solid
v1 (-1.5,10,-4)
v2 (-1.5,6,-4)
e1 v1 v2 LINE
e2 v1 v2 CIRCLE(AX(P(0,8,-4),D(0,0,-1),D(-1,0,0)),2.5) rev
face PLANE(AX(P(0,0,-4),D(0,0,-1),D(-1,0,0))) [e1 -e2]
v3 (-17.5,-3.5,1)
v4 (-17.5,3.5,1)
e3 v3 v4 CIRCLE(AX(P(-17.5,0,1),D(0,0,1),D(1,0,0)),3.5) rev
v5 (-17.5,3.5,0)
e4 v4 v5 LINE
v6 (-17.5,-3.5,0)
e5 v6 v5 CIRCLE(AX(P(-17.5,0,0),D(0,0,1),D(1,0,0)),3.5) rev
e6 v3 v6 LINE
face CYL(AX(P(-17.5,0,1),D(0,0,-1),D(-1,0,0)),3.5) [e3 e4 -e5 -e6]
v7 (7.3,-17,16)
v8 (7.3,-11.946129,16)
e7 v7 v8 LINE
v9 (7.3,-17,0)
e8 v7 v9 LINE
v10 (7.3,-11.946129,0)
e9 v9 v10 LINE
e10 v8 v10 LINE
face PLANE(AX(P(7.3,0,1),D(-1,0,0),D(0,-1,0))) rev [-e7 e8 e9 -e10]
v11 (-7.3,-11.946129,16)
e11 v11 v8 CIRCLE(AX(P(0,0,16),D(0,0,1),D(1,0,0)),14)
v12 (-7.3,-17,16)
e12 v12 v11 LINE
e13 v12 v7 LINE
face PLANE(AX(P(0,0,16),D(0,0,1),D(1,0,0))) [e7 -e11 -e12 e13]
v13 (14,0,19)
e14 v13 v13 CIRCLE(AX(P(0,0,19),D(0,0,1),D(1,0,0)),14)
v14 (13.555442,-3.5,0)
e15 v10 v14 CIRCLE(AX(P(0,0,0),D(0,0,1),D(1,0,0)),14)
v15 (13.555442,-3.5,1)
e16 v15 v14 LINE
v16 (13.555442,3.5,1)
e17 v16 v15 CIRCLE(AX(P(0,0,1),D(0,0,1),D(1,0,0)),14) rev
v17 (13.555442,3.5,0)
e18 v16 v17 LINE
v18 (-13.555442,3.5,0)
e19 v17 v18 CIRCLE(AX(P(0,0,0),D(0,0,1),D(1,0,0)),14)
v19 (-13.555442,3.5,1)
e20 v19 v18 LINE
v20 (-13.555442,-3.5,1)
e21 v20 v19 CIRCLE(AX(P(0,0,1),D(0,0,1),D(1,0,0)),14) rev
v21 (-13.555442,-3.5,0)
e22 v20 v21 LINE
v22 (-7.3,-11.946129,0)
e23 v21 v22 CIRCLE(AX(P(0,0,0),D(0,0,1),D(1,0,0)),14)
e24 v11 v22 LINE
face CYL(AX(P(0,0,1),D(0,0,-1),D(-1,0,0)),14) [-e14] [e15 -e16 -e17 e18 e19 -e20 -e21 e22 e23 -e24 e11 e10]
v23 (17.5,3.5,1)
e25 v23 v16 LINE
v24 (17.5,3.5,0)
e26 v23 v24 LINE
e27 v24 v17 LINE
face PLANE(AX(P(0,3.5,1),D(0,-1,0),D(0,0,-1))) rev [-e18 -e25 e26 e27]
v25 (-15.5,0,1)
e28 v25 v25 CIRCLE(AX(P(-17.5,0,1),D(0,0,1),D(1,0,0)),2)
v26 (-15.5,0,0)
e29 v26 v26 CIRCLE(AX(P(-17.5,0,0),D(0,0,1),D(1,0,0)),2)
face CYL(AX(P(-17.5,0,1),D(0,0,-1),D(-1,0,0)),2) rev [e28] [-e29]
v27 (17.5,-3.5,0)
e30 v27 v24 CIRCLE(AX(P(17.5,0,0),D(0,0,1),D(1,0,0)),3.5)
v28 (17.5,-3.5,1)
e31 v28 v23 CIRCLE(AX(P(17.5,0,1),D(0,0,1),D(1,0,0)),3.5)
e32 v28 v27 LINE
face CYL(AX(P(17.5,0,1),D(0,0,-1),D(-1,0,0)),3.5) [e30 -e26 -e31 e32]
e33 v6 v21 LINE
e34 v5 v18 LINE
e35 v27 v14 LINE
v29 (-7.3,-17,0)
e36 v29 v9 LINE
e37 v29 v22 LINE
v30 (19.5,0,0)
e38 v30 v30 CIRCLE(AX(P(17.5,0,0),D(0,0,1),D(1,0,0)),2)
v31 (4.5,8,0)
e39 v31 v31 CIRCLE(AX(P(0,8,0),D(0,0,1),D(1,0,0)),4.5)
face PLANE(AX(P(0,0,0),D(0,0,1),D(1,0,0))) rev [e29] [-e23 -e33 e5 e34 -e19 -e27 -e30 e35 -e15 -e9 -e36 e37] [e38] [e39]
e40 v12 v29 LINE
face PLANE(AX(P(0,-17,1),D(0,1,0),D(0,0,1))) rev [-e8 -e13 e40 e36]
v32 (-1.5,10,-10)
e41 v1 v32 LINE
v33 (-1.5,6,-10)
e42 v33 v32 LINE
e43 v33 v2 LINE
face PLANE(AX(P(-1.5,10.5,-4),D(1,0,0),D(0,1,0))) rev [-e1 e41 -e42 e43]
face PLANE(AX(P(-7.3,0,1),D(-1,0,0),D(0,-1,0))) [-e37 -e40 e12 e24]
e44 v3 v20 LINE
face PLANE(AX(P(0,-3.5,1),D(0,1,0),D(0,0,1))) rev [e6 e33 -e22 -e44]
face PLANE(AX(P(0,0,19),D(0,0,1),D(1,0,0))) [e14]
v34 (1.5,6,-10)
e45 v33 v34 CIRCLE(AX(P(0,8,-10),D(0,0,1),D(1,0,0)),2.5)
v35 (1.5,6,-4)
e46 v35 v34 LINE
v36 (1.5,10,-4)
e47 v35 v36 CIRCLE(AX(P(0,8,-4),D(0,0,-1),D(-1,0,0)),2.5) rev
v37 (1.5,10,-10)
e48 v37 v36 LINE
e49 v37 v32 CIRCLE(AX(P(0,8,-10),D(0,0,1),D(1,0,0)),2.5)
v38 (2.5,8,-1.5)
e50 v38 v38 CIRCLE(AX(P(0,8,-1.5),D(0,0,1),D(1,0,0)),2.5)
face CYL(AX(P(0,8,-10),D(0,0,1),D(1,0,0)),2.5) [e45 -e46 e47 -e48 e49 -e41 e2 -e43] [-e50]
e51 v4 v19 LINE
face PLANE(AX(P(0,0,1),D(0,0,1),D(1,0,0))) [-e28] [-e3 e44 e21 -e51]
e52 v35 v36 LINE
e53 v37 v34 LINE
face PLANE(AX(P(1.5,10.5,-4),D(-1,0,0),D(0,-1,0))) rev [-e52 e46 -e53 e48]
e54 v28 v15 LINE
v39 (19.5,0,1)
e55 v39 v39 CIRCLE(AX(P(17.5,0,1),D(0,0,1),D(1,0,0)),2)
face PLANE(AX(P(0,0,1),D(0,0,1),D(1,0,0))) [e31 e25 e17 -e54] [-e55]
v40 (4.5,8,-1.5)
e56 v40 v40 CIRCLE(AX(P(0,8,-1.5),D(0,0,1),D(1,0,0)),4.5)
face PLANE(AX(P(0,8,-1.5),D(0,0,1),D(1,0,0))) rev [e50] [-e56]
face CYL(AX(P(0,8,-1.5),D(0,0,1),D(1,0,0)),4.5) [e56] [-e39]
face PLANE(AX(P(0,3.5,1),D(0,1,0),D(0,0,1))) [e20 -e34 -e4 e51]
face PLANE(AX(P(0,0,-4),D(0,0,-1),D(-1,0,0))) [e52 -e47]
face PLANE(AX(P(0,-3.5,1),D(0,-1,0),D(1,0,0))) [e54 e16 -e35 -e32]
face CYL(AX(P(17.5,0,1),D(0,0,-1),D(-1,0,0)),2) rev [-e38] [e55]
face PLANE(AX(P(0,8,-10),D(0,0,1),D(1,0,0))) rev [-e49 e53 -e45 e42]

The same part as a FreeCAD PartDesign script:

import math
import FreeCAD as App
import Part
import Sketcher
from FreeCAD import Vector


def add_polygon(sketch, points):
    """Adds a closed chain of lines whose ends are joined by coincident constraints."""
    first, n = sketch.GeometryCount, len(points)
    for a, b in zip(points, points[1:] + points[:1]):
        sketch.addGeometry(Part.LineSegment(App.Vector(*a, 0), App.Vector(*b, 0)), False)
    for i in range(n):
        sketch.addConstraint(Sketcher.Constraint("Coincident", first + i, 2, first + (i + 1) % n, 1))

doc = App.newDocument("Part")
body = doc.addObject("PartDesign::Body", "Body")

sketch1 = doc.addObject("Sketcher::SketchObject", "Sketch")
body.addObject(sketch1)
sketch1.AttachmentSupport = (doc.XY_Plane, [""])
sketch1.MapMode = "FlatFace"
sketch1.addGeometry(Part.LineSegment(Vector(-7.3, -11.946129, 0), Vector(-7.3, -17, 0)), False)
sketch1.addGeometry(Part.LineSegment(Vector(-7.3, -17, 0), Vector(7.3, -17, 0)), False)
sketch1.addGeometry(Part.LineSegment(Vector(7.3, -17, 0), Vector(7.3, -11.946129, 0)), False)
sketch1.addGeometry(Part.ArcOfCircle(Part.Circle(Vector(0, 0, 0), Vector(0, 0, 1), 14), math.radians(-58.571874), math.radians(-14.477512)), False)
sketch1.addGeometry(Part.LineSegment(Vector(13.555442, -3.5, 0), Vector(17.5, -3.5, 0)), False)
sketch1.addGeometry(Part.ArcOfCircle(Part.Circle(Vector(17.5, 0, 0), Vector(0, 0, 1), 3.5), math.radians(-90), math.radians(90)), False)
sketch1.addGeometry(Part.LineSegment(Vector(17.5, 3.5, 0), Vector(13.555442, 3.5, 0)), False)
sketch1.addGeometry(Part.ArcOfCircle(Part.Circle(Vector(0, 0, 0), Vector(0, 0, 1), 14), math.radians(14.477512), math.radians(165.522488)), False)
sketch1.addGeometry(Part.LineSegment(Vector(-13.555442, 3.5, 0), Vector(-17.5, 3.5, 0)), False)
sketch1.addGeometry(Part.ArcOfCircle(Part.Circle(Vector(-17.5, 0, 0), Vector(0, 0, 1), 3.5), math.radians(90), math.radians(270)), False)
sketch1.addGeometry(Part.LineSegment(Vector(-17.5, -3.5, 0), Vector(-13.555442, -3.5, 0)), False)
sketch1.addGeometry(Part.ArcOfCircle(Part.Circle(Vector(0, 0, 0), Vector(0, 0, 1), 14), math.radians(-165.522488), math.radians(-121.428126)), False)
sketch1.addGeometry(Part.Circle(Vector(-17.5, 0, 0), Vector(0, 0, 1), 2), False)
sketch1.addGeometry(Part.Circle(Vector(17.5, 0, 0), Vector(0, 0, 1), 2), False)
sketch1.addConstraint(Sketcher.Constraint("Coincident", 0, 2, 1, 1))
sketch1.addConstraint(Sketcher.Constraint("Coincident", 1, 2, 2, 1))
sketch1.addConstraint(Sketcher.Constraint("Coincident", 2, 2, 3, 1))
sketch1.addConstraint(Sketcher.Constraint("Coincident", 3, 2, 4, 1))
sketch1.addConstraint(Sketcher.Constraint("Tangent", 4, 2, 5, 1))
sketch1.addConstraint(Sketcher.Constraint("Tangent", 5, 2, 6, 1))
sketch1.addConstraint(Sketcher.Constraint("Coincident", 6, 2, 7, 1))
sketch1.addConstraint(Sketcher.Constraint("Coincident", 7, 2, 8, 1))
sketch1.addConstraint(Sketcher.Constraint("Tangent", 8, 2, 9, 1))
sketch1.addConstraint(Sketcher.Constraint("Tangent", 9, 2, 10, 1))
sketch1.addConstraint(Sketcher.Constraint("Coincident", 10, 2, 11, 1))
sketch1.addConstraint(Sketcher.Constraint("Coincident", 11, 2, 0, 1))
sketch1.addConstraint(Sketcher.Constraint("Vertical", 0))
sketch1.addConstraint(Sketcher.Constraint("Horizontal", 1))
sketch1.addConstraint(Sketcher.Constraint("Vertical", 2))
sketch1.addConstraint(Sketcher.Constraint("Horizontal", 4))
sketch1.addConstraint(Sketcher.Constraint("Horizontal", 6))
sketch1.addConstraint(Sketcher.Constraint("Horizontal", 8))
sketch1.addConstraint(Sketcher.Constraint("Horizontal", 10))
sketch1.addConstraint(Sketcher.Constraint("Coincident", 3, 3, -1, 1))
sketch1.addConstraint(Sketcher.Constraint("Coincident", 7, 3, -1, 1))
sketch1.addConstraint(Sketcher.Constraint("Coincident", 11, 3, -1, 1))
sketch1.addConstraint(Sketcher.Constraint("Coincident", 12, 3, 9, 3))
sketch1.addConstraint(Sketcher.Constraint("Coincident", 13, 3, 5, 3))
sketch1.addConstraint(Sketcher.Constraint("Equal", 3, 7))
sketch1.addConstraint(Sketcher.Constraint("Equal", 5, 9))
sketch1.addConstraint(Sketcher.Constraint("Equal", 7, 11))
sketch1.addConstraint(Sketcher.Constraint("Equal", 12, 13))
sketch1.addConstraint(Sketcher.Constraint("Symmetric", 5, 3, 9, 3, -1, 1))
sketch1.addConstraint(Sketcher.Constraint("PointOnObject", 5, 3, -1))
sketch1.addConstraint(Sketcher.Constraint("Horizontal", 2, 2, 11, 2))
sketch1.addConstraint(Sketcher.Constraint("Diameter", 12, 4.0))
sketch1.addConstraint(Sketcher.Constraint("Radius", 3, 14.0))
sketch1.addConstraint(Sketcher.Constraint("Radius", 5, 3.5))
sketch1.addConstraint(Sketcher.Constraint("DistanceX", 1, 1, 1, 2, 14.6))
sketch1.addConstraint(Sketcher.Constraint("DistanceY", 0, 2, -1, 1, 17.0))
sketch1.addConstraint(Sketcher.Constraint("DistanceX", 9, 3, 5, 3, 35.0))
pad1 = doc.addObject("PartDesign::Pad", "Pad")
body.addObject(pad1)
pad1.Profile = sketch1
pad1.Length = 1

sketch2 = doc.addObject("Sketcher::SketchObject", "Sketch001")
body.addObject(sketch2)
sketch2.AttachmentSupport = (doc.XY_Plane, [""])
sketch2.MapMode = "FlatFace"
sketch2.addGeometry(Part.Circle(Vector(0, 0, 0), Vector(0, 0, 1), 14), False)
sketch2.addConstraint(Sketcher.Constraint("Coincident", 0, 3, -1, 1))
sketch2.addConstraint(Sketcher.Constraint("Diameter", 0, 28.0))
pad2 = doc.addObject("PartDesign::Pad", "Pad001")
body.addObject(pad2)
pad2.Profile = sketch2
pad2.Length = 19

sketch3 = doc.addObject("Sketcher::SketchObject", "Sketch002")
body.addObject(sketch3)
sketch3.AttachmentSupport = (doc.XY_Plane, [""])
sketch3.MapMode = "FlatFace"
sketch3.addGeometry(Part.LineSegment(Vector(-7.3, -11.946129, 0), Vector(-7.3, -17, 0)), False)
sketch3.addGeometry(Part.LineSegment(Vector(-7.3, -17, 0), Vector(7.3, -17, 0)), False)
sketch3.addGeometry(Part.LineSegment(Vector(7.3, -17, 0), Vector(7.3, -11.946129, 0)), False)
sketch3.addGeometry(Part.ArcOfCircle(Part.Circle(Vector(0, 0, 0), Vector(0, 0, 1), 14), math.radians(-121.428126), math.radians(-58.571874)), False)
sketch3.addConstraint(Sketcher.Constraint("Coincident", 0, 2, 1, 1))
sketch3.addConstraint(Sketcher.Constraint("Coincident", 1, 2, 2, 1))
sketch3.addConstraint(Sketcher.Constraint("Coincident", 2, 2, 3, 2))
sketch3.addConstraint(Sketcher.Constraint("Coincident", 3, 1, 0, 1))
sketch3.addConstraint(Sketcher.Constraint("Vertical", 0))
sketch3.addConstraint(Sketcher.Constraint("Horizontal", 1))
sketch3.addConstraint(Sketcher.Constraint("Vertical", 2))
sketch3.addConstraint(Sketcher.Constraint("Coincident", 3, 3, -1, 1))
sketch3.addConstraint(Sketcher.Constraint("Horizontal", 2, 2, 3, 1))
sketch3.addConstraint(Sketcher.Constraint("Radius", 3, 14.0))
sketch3.addConstraint(Sketcher.Constraint("DistanceX", 1, 1, 1, 2, 14.6))
sketch3.addConstraint(Sketcher.Constraint("DistanceY", 0, 2, -1, 1, 17.0))
pad3 = doc.addObject("PartDesign::Pad", "Pad002")
body.addObject(pad3)
pad3.Profile = sketch3
pad3.Length = 16

sketch4 = doc.addObject("Sketcher::SketchObject", "Sketch003")
body.addObject(sketch4)
sketch4.AttachmentSupport = (doc.XY_Plane, [""])
sketch4.MapMode = "FlatFace"
sketch4.addGeometry(Part.Circle(Vector(0, 8, 0), Vector(0, 0, 1), 4.5), False)
sketch4.addConstraint(Sketcher.Constraint("PointOnObject", 0, 3, -2))
sketch4.addConstraint(Sketcher.Constraint("Diameter", 0, 9.0))
sketch4.addConstraint(Sketcher.Constraint("DistanceY", -1, 1, 0, 3, 8.0))
pad4 = doc.addObject("PartDesign::Pad", "Pad003")
body.addObject(pad4)
pad4.Profile = sketch4
pad4.Length = 1.5
pad4.Reversed = True

sketch5 = doc.addObject("Sketcher::SketchObject", "Sketch004")
body.addObject(sketch5)
sketch5.AttachmentSupport = (doc.XY_Plane, [""])
sketch5.MapMode = "FlatFace"
sketch5.addGeometry(Part.Circle(Vector(0, 8, 0), Vector(0, 0, 1), 2.5), False)
sketch5.addConstraint(Sketcher.Constraint("PointOnObject", 0, 3, -2))
sketch5.addConstraint(Sketcher.Constraint("Diameter", 0, 5.0))
sketch5.addConstraint(Sketcher.Constraint("DistanceY", -1, 1, 0, 3, 8.0))
pad5 = doc.addObject("PartDesign::Pad", "Pad004")
body.addObject(pad5)
pad5.Profile = sketch5
pad5.Length = 10
pad5.Reversed = True

sketch6 = doc.addObject("Sketcher::SketchObject", "Sketch005")
body.addObject(sketch6)
sketch6.AttachmentSupport = (doc.XY_Plane, [""])
sketch6.MapMode = "FlatFace"
sketch6.AttachmentOffset = App.Placement(Vector(0, 0, -10), App.Rotation())
add_polygon(sketch6, [(-1.5, 10.5), (-1.5, 5.5), (-2.5, 5.5), (-2.5, 10.5)])
add_polygon(sketch6, [(2.5, 10.5), (2.5, 5.5), (1.5, 5.5), (1.5, 10.5)])
sketch6.addConstraint(Sketcher.Constraint("Vertical", 0))
sketch6.addConstraint(Sketcher.Constraint("Horizontal", 1))
sketch6.addConstraint(Sketcher.Constraint("Vertical", 2))
sketch6.addConstraint(Sketcher.Constraint("Horizontal", 3))
sketch6.addConstraint(Sketcher.Constraint("Vertical", 4))
sketch6.addConstraint(Sketcher.Constraint("Horizontal", 5))
sketch6.addConstraint(Sketcher.Constraint("Vertical", 6))
sketch6.addConstraint(Sketcher.Constraint("Horizontal", 7))
sketch6.addConstraint(Sketcher.Constraint("Symmetric", 1, 2, 4, 2, -2))
sketch6.addConstraint(Sketcher.Constraint("Symmetric", 3, 2, 6, 2, -2))
sketch6.addConstraint(Sketcher.Constraint("DistanceX", 1, 2, 1, 1, 1.0))
sketch6.addConstraint(Sketcher.Constraint("DistanceY", 0, 2, 0, 1, 5.0))
sketch6.addConstraint(Sketcher.Constraint("DistanceX", 0, 2, 4, 2, 4.0))
sketch6.addConstraint(Sketcher.Constraint("DistanceY", -1, 1, 0, 2, 5.5))
pocket1 = doc.addObject("PartDesign::Pocket", "Pocket")
body.addObject(pocket1)
pocket1.Profile = sketch6
pocket1.Length = 6
pocket1.Reversed = True

doc.recompute()
